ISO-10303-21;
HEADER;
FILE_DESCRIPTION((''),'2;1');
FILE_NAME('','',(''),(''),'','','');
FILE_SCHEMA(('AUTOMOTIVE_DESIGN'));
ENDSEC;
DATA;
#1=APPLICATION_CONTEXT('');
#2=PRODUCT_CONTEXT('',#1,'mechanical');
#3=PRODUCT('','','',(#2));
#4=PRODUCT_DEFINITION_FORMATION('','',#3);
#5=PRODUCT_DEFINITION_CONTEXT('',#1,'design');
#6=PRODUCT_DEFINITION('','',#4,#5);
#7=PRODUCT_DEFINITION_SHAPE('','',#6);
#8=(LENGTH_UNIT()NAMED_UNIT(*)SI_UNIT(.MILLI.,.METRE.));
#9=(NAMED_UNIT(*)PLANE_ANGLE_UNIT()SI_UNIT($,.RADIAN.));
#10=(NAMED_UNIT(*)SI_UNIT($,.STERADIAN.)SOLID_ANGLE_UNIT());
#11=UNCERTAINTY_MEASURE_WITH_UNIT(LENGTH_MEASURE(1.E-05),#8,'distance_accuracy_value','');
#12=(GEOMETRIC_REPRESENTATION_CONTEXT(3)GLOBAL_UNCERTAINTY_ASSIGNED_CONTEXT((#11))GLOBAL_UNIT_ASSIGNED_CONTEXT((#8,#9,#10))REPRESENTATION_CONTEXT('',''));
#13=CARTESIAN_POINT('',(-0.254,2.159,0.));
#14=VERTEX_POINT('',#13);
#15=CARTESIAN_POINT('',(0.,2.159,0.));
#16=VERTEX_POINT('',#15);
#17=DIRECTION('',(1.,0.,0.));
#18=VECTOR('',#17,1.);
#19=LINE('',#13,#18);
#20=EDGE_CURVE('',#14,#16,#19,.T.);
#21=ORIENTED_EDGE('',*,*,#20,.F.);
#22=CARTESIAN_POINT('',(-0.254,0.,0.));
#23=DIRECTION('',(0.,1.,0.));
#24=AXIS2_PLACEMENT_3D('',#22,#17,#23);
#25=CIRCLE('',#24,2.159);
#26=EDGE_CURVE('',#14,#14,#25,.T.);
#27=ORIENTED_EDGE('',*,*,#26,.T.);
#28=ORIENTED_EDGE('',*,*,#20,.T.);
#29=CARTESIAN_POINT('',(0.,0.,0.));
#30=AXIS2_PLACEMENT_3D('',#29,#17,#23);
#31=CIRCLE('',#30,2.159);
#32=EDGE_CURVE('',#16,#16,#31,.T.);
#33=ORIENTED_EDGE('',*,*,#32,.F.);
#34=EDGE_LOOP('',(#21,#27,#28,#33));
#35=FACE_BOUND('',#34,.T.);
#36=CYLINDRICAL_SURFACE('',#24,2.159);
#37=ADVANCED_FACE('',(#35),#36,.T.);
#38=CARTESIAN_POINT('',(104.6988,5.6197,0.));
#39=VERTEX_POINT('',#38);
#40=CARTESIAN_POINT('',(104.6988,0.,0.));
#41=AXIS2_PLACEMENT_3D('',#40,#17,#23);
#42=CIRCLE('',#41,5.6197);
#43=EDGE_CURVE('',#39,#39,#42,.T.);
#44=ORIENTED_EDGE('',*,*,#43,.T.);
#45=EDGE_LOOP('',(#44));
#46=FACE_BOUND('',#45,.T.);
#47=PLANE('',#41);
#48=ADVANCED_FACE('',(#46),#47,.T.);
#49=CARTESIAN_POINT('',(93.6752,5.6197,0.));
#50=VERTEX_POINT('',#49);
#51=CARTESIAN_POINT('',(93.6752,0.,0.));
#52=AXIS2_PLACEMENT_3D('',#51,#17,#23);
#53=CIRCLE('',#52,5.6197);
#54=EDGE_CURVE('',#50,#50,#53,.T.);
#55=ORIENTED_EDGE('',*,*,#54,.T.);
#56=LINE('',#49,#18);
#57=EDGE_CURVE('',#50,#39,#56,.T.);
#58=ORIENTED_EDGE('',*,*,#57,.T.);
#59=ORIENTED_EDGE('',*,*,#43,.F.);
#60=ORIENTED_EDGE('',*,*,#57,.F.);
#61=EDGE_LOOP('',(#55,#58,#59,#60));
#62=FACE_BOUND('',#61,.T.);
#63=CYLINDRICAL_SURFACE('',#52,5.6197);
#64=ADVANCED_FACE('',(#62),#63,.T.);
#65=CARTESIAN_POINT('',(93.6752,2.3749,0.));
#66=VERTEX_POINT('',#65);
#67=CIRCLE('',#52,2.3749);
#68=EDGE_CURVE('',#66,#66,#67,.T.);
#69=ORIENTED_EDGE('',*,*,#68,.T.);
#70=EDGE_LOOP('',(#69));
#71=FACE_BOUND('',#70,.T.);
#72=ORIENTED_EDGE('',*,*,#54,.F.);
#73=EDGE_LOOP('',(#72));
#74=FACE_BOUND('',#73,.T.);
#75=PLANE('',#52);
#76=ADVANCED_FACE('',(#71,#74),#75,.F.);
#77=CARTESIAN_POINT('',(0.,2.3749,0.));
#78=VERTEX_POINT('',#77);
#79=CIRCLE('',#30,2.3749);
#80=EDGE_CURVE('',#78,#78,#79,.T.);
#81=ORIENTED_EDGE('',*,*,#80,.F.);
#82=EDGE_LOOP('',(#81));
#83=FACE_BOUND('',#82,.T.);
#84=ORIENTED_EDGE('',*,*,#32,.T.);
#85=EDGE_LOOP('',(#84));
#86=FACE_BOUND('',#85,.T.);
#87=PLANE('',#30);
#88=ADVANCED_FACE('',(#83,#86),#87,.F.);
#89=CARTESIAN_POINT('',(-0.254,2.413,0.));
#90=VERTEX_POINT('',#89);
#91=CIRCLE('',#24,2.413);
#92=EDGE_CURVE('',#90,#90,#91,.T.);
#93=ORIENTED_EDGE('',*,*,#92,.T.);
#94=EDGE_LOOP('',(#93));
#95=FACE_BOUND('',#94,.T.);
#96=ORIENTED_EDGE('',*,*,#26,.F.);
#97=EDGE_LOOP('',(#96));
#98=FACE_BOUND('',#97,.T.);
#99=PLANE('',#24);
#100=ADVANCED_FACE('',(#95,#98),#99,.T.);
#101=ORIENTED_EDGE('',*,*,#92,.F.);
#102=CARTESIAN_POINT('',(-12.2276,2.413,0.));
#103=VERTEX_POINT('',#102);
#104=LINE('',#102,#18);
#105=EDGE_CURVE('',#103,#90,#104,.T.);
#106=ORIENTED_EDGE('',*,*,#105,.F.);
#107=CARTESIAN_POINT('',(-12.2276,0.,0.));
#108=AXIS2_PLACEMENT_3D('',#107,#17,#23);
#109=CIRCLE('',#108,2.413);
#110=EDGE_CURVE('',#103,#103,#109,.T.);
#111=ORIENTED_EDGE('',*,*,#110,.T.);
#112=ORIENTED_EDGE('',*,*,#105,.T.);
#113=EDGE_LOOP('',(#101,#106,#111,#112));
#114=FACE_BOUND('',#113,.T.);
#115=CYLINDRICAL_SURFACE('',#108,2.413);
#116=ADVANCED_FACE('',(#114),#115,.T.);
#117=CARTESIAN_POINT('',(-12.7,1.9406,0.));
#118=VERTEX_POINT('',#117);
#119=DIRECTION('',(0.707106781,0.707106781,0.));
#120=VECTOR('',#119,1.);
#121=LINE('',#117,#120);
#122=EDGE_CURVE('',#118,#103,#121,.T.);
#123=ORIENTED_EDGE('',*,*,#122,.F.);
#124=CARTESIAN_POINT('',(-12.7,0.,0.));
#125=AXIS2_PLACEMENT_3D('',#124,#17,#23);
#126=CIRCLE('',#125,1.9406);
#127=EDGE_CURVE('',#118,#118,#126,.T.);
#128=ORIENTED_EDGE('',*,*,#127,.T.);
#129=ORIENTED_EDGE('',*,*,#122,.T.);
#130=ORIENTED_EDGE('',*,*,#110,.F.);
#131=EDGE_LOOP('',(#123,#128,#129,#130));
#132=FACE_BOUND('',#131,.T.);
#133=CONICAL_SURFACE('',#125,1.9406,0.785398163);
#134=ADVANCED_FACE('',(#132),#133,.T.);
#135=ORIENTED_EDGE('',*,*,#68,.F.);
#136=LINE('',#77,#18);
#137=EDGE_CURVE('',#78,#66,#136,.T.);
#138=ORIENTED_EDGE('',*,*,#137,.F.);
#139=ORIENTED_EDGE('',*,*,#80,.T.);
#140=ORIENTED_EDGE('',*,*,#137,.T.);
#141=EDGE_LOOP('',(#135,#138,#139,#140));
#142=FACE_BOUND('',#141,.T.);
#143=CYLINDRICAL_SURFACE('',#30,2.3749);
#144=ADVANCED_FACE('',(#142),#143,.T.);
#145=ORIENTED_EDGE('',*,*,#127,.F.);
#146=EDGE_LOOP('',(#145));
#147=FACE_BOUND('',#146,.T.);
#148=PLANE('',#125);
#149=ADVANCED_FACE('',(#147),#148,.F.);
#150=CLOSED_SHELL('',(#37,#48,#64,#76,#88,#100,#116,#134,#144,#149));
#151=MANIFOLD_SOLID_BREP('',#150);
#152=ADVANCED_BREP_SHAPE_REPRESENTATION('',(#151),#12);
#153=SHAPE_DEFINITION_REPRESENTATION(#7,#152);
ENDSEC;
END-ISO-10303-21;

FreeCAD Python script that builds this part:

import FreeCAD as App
import Part
import Sketcher
Q = App.Units.Quantity

doc = App.newDocument("Part")
body = doc.addObject("PartDesign::Body", "Body")

# Sketch on XY plane
sketch1 = body.newObject("Sketcher::SketchObject", "Sketch")
sketch1.AttachmentSupport = (doc.getObject("XY_Plane"), [""])
sketch1.MapMode = "FlatFace"
sketch1.addGeometry([
    Part.LineSegment(App.Vector(0, 0, 0), App.Vector(104.6988, 0, 0)),  # 0
    Part.LineSegment(App.Vector(104.6988, 0, 0), App.Vector(104.6988, 5.6197, 0)),  # 1
    Part.LineSegment(App.Vector(104.6988, 5.6197, 0), App.Vector(93.6752, 5.6197, 0)),  # 2
    Part.LineSegment(App.Vector(93.6752, 5.6197, 0), App.Vector(93.6752, 2.3749, 0)),  # 3
    Part.LineSegment(App.Vector(93.6752, 2.3749, 0), App.Vector(0, 2.3749, 0)),  # 4
    Part.LineSegment(App.Vector(0, 2.3749, 0), App.Vector(0, 0, 0)),  # 5
], False)
sketch1.addConstraint([
    Sketcher.Constraint("Coincident", 0, 2, 1, 1),
    Sketcher.Constraint("Coincident", 1, 2, 2, 1),
    Sketcher.Constraint("Coincident", 2, 2, 3, 1),
    Sketcher.Constraint("Coincident", 3, 2, 4, 1),
    Sketcher.Constraint("Coincident", 4, 2, 5, 1),
    Sketcher.Constraint("Coincident", 5, 2, 0, 1),
    Sketcher.Constraint("Horizontal", 0),
    Sketcher.Constraint("Vertical", 1),
    Sketcher.Constraint("Horizontal", 2),
    Sketcher.Constraint("Vertical", 3),
    Sketcher.Constraint("Horizontal", 4),
    Sketcher.Constraint("Vertical", 5),
    Sketcher.Constraint("Coincident", 5, 2, -1, 1),
    Sketcher.Constraint("DistanceX", 0, 1, 0, 2, Q("4.122 in")),
    Sketcher.Constraint("DistanceX", 2, 2, 2, 1, Q("0.434 in")),
    Sketcher.Constraint("DistanceY", 5, 2, 5, 1, Q("0.0935 in")),
    Sketcher.Constraint("DistanceY", 1, 1, 1, 2, 5.6197),
])
revolution = body.newObject("PartDesign::Revolution", "Revolution")
revolution.Profile = sketch1
revolution.ReferenceAxis = (sketch1, ["H_Axis"])
revolution.Angle = 360

# Sketch on XY plane
sketch2 = body.newObject("Sketcher::SketchObject", "Sketch001")
sketch2.AttachmentSupport = (doc.getObject("XY_Plane"), [""])
sketch2.MapMode = "FlatFace"
sketch2.addGeometry([
    Part.LineSegment(App.Vector(-12.7, 0, 0), App.Vector(0, 0, 0)),  # 0
    Part.LineSegment(App.Vector(0, 0, 0), App.Vector(0, 2.413, 0)),  # 1
    Part.LineSegment(App.Vector(0, 2.413, 0), App.Vector(-12.2276, 2.413, 0)),  # 2
    Part.LineSegment(App.Vector(-12.2276, 2.413, 0), App.Vector(-12.7, 1.9406, 0)),  # 3
    Part.LineSegment(App.Vector(-12.7, 1.9406, 0), App.Vector(-12.7, 0, 0)),  # 4
], False)
sketch2.addConstraint([
    Sketcher.Constraint("Coincident", 0, 2, 1, 1),
    Sketcher.Constraint("Coincident", 1, 2, 2, 1),
    Sketcher.Constraint("Coincident", 2, 2, 3, 1),
    Sketcher.Constraint("Coincident", 3, 2, 4, 1),
    Sketcher.Constraint("Coincident", 4, 2, 0, 1),
    Sketcher.Constraint("Horizontal", 0),
    Sketcher.Constraint("Vertical", 1),
    Sketcher.Constraint("Horizontal", 2),
    Sketcher.Constraint("Vertical", 4),
    Sketcher.Constraint("Coincident", 0, 2, -1, 1),
    Sketcher.Constraint("DistanceX", 0, 1, 0, 2, Q("0.5 in")),
    Sketcher.Constraint("Angle", 3, Q("-135 deg")),
    Sketcher.Constraint("DistanceY", 1, 1, 1, 2, Q("0.095 in")),
    Sketcher.Constraint("DistanceX", 2, 2, 2, 1, Q("0.4814 in")),
])
revolution2 = body.newObject("PartDesign::Revolution", "Revolution001")
revolution2.Profile = sketch2
revolution2.ReferenceAxis = (sketch2, ["H_Axis"])
revolution2.Angle = 360

# Sketch on XY plane
sketch3 = body.newObject("Sketcher::SketchObject", "Sketch002")
sketch3.AttachmentSupport = (doc.getObject("XY_Plane"), [""])
sketch3.MapMode = "FlatFace"
sketch3.addGeometry([
    Part.LineSegment(App.Vector(0, 2.667, 0), App.Vector(-0.254, 2.667, 0)),
    Part.LineSegment(App.Vector(-0.254, 2.667, 0), App.Vector(-0.254, 2.159, 0)),
    Part.LineSegment(App.Vector(-0.254, 2.159, 0), App.Vector(0, 2.159, 0)),
    Part.LineSegment(App.Vector(0, 2.159, 0), App.Vector(0, 2.667, 0)),
], False)
sketch3.addConstraint([
    Sketcher.Constraint("Coincident", 0, 2, 1, 1),
    Sketcher.Constraint("Coincident", 1, 2, 2, 1),
    Sketcher.Constraint("Coincident", 2, 2, 3, 1),
    Sketcher.Constraint("Coincident", 3, 2, 0, 1),
    Sketcher.Constraint("Horizontal", 0),
    Sketcher.Constraint("Vertical", 1),
    Sketcher.Constraint("Horizontal", 2),
    Sketcher.Constraint("Vertical", 3),
    Sketcher.Constraint("PointOnObject", 2, 2, -2),
    Sketcher.Constraint("DistanceX", 0, 2, 0, 1, Q("0.01 in")),
    Sketcher.Constraint("DistanceY", 1, 2, 1, 1, Q("0.02 in")),
    Sketcher.Constraint("DistanceY", -1, 1, 0, 2, Q("0.105 in")),
])
groove = body.newObject("PartDesign::Groove", "Groove")
groove.Profile = sketch3
groove.ReferenceAxis = (sketch3, ["H_Axis"])
groove.Angle = 360

doc.recompute()
